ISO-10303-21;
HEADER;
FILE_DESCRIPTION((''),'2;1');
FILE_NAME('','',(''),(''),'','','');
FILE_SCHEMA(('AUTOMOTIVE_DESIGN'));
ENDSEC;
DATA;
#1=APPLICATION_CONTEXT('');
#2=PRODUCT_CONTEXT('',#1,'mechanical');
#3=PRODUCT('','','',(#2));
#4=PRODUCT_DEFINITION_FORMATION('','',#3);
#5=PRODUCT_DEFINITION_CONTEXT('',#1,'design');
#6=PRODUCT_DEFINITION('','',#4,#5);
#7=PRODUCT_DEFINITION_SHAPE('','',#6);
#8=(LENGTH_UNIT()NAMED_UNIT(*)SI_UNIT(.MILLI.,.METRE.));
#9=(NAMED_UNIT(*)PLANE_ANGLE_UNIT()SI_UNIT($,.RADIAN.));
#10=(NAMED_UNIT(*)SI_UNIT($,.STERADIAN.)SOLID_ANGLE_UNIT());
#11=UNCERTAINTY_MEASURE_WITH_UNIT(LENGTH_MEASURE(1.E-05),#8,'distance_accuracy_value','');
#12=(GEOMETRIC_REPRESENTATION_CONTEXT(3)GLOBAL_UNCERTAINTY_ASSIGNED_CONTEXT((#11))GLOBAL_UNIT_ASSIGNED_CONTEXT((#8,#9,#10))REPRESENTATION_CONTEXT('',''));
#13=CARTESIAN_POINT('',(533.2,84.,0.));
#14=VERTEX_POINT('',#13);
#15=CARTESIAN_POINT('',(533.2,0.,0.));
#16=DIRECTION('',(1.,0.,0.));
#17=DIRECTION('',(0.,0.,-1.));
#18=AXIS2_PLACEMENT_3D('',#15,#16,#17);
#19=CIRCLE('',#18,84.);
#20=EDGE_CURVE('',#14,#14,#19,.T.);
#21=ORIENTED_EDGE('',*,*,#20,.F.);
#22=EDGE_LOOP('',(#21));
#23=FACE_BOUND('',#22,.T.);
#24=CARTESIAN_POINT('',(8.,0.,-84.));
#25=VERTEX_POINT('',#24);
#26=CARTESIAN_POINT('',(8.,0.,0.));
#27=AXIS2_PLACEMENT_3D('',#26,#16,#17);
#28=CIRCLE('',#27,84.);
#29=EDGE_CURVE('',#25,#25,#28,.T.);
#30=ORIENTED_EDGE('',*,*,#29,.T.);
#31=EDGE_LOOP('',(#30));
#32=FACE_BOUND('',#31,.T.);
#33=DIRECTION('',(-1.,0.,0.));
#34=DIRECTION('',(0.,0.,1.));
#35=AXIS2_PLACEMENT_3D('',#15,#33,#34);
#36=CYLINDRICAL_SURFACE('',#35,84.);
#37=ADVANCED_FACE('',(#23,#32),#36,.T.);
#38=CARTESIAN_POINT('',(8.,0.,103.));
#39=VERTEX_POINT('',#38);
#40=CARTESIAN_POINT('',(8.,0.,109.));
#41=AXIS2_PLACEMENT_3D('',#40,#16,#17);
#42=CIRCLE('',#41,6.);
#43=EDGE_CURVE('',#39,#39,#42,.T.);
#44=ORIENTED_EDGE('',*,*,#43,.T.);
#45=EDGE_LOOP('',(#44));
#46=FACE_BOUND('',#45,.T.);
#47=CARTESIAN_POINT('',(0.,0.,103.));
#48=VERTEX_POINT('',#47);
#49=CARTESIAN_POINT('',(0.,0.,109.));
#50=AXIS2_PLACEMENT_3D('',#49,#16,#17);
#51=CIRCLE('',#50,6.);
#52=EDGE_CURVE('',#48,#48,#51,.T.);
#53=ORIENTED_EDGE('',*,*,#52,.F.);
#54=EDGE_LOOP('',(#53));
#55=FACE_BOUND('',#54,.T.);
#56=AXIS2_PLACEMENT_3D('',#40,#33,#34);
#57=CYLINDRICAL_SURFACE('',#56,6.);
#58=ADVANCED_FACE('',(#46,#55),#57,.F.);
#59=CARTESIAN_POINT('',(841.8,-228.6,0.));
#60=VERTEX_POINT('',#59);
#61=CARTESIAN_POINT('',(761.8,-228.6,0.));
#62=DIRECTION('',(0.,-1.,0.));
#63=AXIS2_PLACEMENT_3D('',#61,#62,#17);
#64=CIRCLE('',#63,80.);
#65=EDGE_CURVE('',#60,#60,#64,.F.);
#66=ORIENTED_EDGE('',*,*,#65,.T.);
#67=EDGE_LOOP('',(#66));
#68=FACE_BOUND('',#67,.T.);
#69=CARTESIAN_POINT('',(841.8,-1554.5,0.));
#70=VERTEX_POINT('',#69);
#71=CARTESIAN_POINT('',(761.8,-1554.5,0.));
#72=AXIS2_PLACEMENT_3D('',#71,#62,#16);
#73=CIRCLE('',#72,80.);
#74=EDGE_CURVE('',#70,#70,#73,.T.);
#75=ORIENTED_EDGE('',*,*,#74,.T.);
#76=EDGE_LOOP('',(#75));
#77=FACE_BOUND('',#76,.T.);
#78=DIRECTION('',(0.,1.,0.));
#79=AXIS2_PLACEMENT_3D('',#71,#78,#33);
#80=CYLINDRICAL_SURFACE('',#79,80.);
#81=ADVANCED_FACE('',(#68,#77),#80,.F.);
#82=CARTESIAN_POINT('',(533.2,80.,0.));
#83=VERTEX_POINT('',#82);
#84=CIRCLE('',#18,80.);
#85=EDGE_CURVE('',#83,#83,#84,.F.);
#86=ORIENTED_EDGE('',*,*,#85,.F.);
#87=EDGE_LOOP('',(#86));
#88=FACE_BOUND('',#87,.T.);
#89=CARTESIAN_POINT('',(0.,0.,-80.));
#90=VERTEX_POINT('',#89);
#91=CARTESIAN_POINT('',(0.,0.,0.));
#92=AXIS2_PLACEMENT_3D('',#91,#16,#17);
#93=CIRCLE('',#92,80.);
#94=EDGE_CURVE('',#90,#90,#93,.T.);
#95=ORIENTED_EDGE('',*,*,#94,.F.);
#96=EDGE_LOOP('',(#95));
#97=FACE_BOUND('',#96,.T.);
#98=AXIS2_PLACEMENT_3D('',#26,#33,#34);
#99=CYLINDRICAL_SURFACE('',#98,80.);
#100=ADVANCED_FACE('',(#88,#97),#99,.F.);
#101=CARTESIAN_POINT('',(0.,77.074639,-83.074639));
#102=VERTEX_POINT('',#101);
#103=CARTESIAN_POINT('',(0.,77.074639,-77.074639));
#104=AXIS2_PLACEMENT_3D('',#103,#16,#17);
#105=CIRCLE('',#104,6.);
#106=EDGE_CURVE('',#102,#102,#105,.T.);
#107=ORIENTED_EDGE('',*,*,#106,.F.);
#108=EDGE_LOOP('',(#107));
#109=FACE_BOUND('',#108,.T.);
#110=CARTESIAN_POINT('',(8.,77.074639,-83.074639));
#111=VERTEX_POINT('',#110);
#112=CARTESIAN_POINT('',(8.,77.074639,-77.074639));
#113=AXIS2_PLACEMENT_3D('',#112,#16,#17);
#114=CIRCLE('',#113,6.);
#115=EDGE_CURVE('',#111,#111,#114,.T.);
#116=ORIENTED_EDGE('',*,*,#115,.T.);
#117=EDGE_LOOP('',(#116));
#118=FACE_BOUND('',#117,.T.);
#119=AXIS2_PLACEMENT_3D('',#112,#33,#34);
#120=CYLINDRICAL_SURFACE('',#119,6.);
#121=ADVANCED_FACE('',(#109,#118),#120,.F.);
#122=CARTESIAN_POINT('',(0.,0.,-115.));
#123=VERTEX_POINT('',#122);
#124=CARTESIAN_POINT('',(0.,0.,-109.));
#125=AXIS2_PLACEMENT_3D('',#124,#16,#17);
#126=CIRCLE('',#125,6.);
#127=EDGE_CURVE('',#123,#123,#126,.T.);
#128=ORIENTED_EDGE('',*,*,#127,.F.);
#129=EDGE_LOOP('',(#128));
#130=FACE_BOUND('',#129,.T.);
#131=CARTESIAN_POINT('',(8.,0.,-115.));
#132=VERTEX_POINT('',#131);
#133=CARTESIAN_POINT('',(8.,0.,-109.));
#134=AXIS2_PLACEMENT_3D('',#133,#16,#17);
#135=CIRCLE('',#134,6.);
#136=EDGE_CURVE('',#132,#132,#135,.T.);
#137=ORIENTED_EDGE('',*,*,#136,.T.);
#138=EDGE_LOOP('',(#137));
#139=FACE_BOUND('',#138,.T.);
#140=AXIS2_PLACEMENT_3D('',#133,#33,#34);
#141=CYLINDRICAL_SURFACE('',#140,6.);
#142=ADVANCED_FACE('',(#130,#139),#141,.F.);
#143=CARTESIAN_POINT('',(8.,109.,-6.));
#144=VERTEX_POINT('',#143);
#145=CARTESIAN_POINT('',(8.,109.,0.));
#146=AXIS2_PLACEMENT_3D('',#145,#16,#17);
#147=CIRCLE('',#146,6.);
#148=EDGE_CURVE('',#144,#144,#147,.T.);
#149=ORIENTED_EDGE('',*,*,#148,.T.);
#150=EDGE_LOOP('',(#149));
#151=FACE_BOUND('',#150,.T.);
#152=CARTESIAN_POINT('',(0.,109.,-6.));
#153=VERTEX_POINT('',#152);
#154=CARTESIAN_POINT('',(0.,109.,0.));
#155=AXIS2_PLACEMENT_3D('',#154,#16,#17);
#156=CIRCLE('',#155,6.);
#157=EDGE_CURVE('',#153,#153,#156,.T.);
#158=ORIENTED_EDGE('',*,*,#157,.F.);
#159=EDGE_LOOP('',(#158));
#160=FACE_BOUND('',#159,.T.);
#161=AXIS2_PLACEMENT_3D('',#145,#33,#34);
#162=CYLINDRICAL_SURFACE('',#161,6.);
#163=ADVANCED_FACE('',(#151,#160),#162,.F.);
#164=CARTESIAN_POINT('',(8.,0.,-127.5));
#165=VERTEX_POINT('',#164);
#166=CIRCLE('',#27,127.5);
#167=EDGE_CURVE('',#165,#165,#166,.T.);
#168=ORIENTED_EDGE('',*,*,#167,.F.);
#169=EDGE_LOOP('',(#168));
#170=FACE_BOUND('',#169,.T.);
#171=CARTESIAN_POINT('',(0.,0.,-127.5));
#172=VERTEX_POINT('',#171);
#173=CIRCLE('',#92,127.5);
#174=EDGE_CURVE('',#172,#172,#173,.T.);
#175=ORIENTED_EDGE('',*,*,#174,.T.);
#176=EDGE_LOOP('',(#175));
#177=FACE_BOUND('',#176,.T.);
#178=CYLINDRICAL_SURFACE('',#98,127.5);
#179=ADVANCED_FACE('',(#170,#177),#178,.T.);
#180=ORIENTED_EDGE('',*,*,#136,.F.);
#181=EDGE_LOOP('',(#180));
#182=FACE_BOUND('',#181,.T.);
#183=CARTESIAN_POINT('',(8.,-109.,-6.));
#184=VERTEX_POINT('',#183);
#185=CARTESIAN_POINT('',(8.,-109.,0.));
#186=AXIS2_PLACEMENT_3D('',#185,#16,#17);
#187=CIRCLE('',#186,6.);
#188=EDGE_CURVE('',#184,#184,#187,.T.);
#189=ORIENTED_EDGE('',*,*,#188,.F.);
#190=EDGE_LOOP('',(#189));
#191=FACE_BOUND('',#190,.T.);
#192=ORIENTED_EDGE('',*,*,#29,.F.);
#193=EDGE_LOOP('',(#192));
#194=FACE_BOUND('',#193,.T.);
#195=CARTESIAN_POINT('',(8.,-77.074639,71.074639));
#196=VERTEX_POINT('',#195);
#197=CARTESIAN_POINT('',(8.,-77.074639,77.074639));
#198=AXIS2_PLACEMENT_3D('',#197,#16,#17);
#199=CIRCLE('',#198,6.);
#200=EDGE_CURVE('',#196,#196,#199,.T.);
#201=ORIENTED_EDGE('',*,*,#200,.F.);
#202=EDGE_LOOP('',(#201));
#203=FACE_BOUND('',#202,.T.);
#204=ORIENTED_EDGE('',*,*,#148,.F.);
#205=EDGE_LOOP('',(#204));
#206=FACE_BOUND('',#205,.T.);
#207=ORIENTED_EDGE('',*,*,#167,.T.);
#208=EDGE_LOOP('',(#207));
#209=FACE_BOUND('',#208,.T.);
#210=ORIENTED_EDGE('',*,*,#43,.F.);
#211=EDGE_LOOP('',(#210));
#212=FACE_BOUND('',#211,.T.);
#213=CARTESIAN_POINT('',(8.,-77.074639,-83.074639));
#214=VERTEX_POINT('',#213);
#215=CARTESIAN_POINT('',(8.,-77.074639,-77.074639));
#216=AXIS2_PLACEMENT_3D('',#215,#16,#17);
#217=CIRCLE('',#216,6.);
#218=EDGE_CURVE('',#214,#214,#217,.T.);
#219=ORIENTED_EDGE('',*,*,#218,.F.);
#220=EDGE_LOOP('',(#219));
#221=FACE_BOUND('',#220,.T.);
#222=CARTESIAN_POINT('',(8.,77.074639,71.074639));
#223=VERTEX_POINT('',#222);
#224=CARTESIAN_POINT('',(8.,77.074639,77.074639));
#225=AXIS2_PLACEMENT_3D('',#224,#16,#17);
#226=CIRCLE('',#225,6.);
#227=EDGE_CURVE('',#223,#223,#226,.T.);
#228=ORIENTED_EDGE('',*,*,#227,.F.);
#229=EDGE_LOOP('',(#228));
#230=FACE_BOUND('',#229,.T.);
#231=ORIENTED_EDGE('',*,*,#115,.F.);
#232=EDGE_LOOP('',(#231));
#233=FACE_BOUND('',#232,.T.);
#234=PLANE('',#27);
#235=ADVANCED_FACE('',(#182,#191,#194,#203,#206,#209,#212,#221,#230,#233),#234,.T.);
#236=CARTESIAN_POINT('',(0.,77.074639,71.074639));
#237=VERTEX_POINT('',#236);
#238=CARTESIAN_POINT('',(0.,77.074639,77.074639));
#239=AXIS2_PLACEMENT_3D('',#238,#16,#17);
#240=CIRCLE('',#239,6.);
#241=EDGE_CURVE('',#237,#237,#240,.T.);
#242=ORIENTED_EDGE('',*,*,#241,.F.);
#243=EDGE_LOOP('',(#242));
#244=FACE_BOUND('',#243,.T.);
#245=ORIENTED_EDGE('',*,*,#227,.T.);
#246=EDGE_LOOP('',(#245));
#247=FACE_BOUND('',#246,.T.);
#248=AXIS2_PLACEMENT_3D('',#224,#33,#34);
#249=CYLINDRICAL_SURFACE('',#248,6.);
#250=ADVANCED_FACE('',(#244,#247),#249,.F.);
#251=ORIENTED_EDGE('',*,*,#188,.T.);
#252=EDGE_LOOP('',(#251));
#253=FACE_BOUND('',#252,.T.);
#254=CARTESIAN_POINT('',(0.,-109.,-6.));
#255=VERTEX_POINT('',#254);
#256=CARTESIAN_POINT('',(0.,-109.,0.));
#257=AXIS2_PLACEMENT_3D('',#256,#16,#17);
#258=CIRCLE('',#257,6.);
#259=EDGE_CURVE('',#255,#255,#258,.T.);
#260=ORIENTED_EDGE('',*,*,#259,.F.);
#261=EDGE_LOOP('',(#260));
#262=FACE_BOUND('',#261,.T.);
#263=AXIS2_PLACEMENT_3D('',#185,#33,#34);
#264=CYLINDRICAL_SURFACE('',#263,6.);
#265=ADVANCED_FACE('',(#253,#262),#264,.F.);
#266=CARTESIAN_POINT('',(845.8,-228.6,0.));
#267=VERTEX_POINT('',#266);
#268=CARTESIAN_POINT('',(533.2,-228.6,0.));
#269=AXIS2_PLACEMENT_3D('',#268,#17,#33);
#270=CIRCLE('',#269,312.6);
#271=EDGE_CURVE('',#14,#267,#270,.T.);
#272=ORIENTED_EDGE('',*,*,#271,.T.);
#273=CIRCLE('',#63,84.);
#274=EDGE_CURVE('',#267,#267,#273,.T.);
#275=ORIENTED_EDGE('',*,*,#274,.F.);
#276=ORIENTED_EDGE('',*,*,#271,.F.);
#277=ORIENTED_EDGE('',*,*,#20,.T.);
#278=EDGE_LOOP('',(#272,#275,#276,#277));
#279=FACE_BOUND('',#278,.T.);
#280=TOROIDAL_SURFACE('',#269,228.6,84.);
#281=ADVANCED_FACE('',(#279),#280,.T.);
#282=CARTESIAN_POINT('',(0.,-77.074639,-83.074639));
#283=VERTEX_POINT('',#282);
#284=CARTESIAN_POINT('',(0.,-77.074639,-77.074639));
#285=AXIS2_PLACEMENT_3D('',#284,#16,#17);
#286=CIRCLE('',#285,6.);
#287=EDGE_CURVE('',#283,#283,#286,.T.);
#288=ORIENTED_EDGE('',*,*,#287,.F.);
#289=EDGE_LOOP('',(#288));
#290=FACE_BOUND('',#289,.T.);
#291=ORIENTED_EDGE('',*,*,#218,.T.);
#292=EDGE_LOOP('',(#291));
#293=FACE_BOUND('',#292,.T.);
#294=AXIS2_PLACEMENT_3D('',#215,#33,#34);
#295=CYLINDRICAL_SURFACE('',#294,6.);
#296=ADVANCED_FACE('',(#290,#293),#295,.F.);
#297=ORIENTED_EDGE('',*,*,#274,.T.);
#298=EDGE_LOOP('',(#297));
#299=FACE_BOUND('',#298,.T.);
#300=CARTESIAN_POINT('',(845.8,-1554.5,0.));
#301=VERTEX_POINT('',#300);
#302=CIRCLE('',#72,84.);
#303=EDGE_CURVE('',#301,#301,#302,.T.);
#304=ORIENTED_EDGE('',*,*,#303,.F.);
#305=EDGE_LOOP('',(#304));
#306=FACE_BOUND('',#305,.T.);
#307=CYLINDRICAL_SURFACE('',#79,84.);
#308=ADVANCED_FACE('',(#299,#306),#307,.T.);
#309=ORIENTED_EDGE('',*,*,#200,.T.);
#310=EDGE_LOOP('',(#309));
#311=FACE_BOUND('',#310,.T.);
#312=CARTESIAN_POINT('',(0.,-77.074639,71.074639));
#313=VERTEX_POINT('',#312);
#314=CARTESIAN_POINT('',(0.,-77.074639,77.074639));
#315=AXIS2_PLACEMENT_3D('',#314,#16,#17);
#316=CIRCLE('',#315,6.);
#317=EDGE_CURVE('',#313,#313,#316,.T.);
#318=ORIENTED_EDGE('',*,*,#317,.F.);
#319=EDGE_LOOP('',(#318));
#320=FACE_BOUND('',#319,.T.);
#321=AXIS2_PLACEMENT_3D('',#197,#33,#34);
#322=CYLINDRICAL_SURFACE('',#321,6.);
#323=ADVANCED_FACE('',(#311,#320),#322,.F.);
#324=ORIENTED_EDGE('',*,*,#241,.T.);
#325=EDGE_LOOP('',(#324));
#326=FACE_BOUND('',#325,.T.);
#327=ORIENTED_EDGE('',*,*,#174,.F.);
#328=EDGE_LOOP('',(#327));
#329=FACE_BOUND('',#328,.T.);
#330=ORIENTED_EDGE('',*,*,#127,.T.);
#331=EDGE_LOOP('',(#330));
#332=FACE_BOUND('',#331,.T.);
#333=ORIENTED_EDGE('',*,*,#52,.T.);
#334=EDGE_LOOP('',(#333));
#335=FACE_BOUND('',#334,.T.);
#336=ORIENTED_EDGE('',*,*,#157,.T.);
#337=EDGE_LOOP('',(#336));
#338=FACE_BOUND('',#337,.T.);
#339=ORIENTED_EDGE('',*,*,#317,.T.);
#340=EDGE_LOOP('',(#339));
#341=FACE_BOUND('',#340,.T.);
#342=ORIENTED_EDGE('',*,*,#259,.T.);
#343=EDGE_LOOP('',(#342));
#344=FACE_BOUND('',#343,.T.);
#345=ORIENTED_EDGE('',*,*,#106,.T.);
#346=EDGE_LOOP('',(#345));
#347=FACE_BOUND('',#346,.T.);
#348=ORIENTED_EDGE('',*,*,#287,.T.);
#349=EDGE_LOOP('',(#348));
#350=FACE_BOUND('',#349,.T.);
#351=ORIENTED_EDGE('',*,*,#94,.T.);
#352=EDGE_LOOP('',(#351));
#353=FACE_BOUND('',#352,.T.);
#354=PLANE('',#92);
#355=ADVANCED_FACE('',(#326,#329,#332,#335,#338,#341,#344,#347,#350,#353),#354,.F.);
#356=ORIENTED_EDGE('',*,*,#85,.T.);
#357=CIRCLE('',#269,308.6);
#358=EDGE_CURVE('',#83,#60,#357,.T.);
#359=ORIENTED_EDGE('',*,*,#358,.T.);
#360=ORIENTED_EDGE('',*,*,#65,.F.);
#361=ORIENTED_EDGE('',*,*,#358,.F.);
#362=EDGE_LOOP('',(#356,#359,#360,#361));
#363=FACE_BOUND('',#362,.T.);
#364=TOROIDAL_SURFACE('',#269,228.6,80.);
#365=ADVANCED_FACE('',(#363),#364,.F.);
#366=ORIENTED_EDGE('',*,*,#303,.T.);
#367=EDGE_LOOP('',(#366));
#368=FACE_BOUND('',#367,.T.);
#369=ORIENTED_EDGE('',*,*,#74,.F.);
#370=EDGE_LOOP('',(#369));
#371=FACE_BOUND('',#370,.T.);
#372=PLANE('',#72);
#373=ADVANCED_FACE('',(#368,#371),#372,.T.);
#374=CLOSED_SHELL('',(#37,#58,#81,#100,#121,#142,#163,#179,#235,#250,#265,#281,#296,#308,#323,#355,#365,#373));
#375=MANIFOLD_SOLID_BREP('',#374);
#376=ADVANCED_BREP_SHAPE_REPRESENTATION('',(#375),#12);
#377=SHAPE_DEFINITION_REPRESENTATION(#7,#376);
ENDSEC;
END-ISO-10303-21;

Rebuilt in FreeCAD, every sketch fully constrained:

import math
import FreeCAD as App
import Part
import Sketcher
from FreeCAD import Vector
Q = App.Units.Quantity

doc = App.newDocument("Part")
body = doc.addObject("PartDesign::Body", "Body")

sketch1 = body.newObject("Sketcher::SketchObject", "Sketch")
sketch1.AttachmentSupport = (doc.getObject("YZ_Plane"), [""])
sketch1.MapMode = "FlatFace"
sketch1.addGeometry([
    Part.Circle(Vector(0, 0, 0), Vector(0, 0, 1), 128),
    Part.Circle(Vector(-77, 77, 0), Vector(0, 0, 1), 6),
    Part.Circle(Vector(-109, 0, 0), Vector(0, 0, 1), 6),
    Part.Circle(Vector(-77, -77, 0), Vector(0, 0, 1), 6),
    Part.Circle(Vector(0, 109, 0), Vector(0, 0, 1), 6),
    Part.Circle(Vector(77, 77, 0), Vector(0, 0, 1), 6),
    Part.Circle(Vector(0, 0, 0), Vector(0, 0, 1), 80),
    Part.Circle(Vector(0, -109, 0), Vector(0, 0, 1), 6),
    Part.Circle(Vector(109, 0, 0), Vector(0, 0, 1), 6),
    Part.Circle(Vector(77, -77, 0), Vector(0, 0, 1), 6),
], False)
sketch1.addConstraint([
    Sketcher.Constraint("Coincident", 0, 3, -1, 1),
    Sketcher.Constraint("Coincident", 6, 3, -1, 1),
    Sketcher.Constraint("Equal", 1, 2),
    Sketcher.Constraint("Equal", 2, 3),
    Sketcher.Constraint("Equal", 3, 4),
    Sketcher.Constraint("Equal", 4, 5),
    Sketcher.Constraint("Equal", 5, 7),
    Sketcher.Constraint("Equal", 7, 8),
    Sketcher.Constraint("Equal", 8, 9),
    Sketcher.Constraint("Symmetric", 3, 3, 5, 3, -1, 1),
    Sketcher.Constraint("Symmetric", 4, 3, 7, 3, -1, 1),
    Sketcher.Constraint("Symmetric", 2, 3, 8, 3, -1, 1),
    Sketcher.Constraint("Symmetric", 1, 3, 9, 3, -1, 1),
    Sketcher.Constraint("Symmetric", 1, 3, 5, 3, -2),
    Sketcher.Constraint("PointOnObject", 2, 3, -1),
    Sketcher.Constraint("PointOnObject", 4, 3, -2),
    Sketcher.Constraint("Diameter", 0, Q("255 mm")),
    Sketcher.Constraint("Diameter", 1, Q("12 mm")),
    Sketcher.Constraint("Diameter", 6, Q("160 mm")),
    Sketcher.Constraint("DistanceX", 2, 3, -1, 1, Q("109 mm")),
    Sketcher.Constraint("DistanceY", -1, 1, 4, 3, Q("109 mm")),
    Sketcher.Constraint("DistanceX", 1, 3, -1, 1, Q("77.074639 mm")),
    Sketcher.Constraint("DistanceY", -1, 1, 1, 3, Q("77.074639 mm")),
])
pad1 = body.newObject("PartDesign::Pad", "Pad")
pad1.Profile = sketch1
pad1.Length = 8

sketch2 = body.newObject("Sketcher::SketchObject", "Sketch001")
sketch2.AttachmentSupport = (doc.getObject("YZ_Plane"), [""])
sketch2.MapMode = "FlatFace"
sketch2.AttachmentOffset = App.Placement(Vector(0, 0, 8), App.Rotation())
sketch2.addGeometry([
    Part.Circle(Vector(0, 0, 0), Vector(0, 0, 1), 84),
    Part.Circle(Vector(0, 0, 0), Vector(0, 0, 1), 80),
], False)
sketch2.addConstraint([
    Sketcher.Constraint("Coincident", 0, 3, -1, 1),
    Sketcher.Constraint("Coincident", 1, 3, -1, 1),
    Sketcher.Constraint("Diameter", 0, Q("168 mm")),
    Sketcher.Constraint("Diameter", 1, Q("160 mm")),
])
pad2 = body.newObject("PartDesign::Pad", "Pad001")
pad2.Profile = sketch2
pad2.Length = 525.2

sketch3 = body.newObject("Sketcher::SketchObject", "Sketch002")
sketch3.AttachmentSupport = (doc.getObject("YZ_Plane"), [""])
sketch3.MapMode = "FlatFace"
sketch3.AttachmentOffset = App.Placement(Vector(0, 0, 533.2), App.Rotation())
sketch3.addGeometry([
    Part.Circle(Vector(0, 0, 0), Vector(0, 0, 1), 84),
    Part.Circle(Vector(0, 0, 0), Vector(0, 0, 1), 80),
], False)
sketch3.addConstraint([
    Sketcher.Constraint("Coincident", 0, 3, -1, 1),
    Sketcher.Constraint("Coincident", 1, 3, -1, 1),
    Sketcher.Constraint("Diameter", 0, Q("168 mm")),
    Sketcher.Constraint("Diameter", 1, Q("160 mm")),
])

sketch4 = body.newObject("Sketcher::SketchObject", "Sketch003")
sketch4.AttachmentSupport = (doc.getObject("XY_Plane"), [""])
sketch4.MapMode = "FlatFace"
sketch4.addGeometry(Part.ArcOfCircle(Part.Circle(Vector(533, -229, 0), Vector(0, 0, 1), 229), math.radians(0), math.radians(90)), False)
sketch4.addConstraint([
    Sketcher.Constraint("PointOnObject", 0, 2, -1),
    Sketcher.Constraint("Radius", 0, Q("228.6 mm")),
    Sketcher.Constraint("DistanceX", -1, 1, 0, 3, Q("533.2 mm")),
    Sketcher.Constraint("DistanceY", 0, 1, -1, 1, Q("228.6 mm")),
    Sketcher.Constraint("DistanceX", -1, 1, 0, 2, Q("533.2 mm")),
])
doc.recompute()

additivepipe = body.newObject("PartDesign::AdditivePipe", "AdditivePipe")
additivepipe.Profile = sketch3
additivepipe.Spine = (sketch4, ["Edge1"])

sketch5 = body.newObject("Sketcher::SketchObject", "Sketch004")
sketch5.AttachmentSupport = (doc.getObject("XZ_Plane"), [""])
sketch5.MapMode = "FlatFace"
sketch5.AttachmentOffset = App.Placement(Vector(0, 0, 228.6), App.Rotation())
sketch5.addGeometry([
    Part.Circle(Vector(762, 0, 0), Vector(0, 0, 1), 84),
    Part.Circle(Vector(762, 0, 0), Vector(0, 0, 1), 80),
], False)
sketch5.addConstraint([
    Sketcher.Constraint("Coincident", 1, 3, 0, 3),
    Sketcher.Constraint("PointOnObject", 0, 3, -1),
    Sketcher.Constraint("Diameter", 0, Q("168 mm")),
    Sketcher.Constraint("Diameter", 1, Q("160 mm")),
    Sketcher.Constraint("DistanceX", -1, 1, 0, 3, Q("761.8 mm")),
])
pad3 = body.newObject("PartDesign::Pad", "Pad002")
pad3.Profile = sketch5
pad3.Length = 1325.9

doc.recompute()
